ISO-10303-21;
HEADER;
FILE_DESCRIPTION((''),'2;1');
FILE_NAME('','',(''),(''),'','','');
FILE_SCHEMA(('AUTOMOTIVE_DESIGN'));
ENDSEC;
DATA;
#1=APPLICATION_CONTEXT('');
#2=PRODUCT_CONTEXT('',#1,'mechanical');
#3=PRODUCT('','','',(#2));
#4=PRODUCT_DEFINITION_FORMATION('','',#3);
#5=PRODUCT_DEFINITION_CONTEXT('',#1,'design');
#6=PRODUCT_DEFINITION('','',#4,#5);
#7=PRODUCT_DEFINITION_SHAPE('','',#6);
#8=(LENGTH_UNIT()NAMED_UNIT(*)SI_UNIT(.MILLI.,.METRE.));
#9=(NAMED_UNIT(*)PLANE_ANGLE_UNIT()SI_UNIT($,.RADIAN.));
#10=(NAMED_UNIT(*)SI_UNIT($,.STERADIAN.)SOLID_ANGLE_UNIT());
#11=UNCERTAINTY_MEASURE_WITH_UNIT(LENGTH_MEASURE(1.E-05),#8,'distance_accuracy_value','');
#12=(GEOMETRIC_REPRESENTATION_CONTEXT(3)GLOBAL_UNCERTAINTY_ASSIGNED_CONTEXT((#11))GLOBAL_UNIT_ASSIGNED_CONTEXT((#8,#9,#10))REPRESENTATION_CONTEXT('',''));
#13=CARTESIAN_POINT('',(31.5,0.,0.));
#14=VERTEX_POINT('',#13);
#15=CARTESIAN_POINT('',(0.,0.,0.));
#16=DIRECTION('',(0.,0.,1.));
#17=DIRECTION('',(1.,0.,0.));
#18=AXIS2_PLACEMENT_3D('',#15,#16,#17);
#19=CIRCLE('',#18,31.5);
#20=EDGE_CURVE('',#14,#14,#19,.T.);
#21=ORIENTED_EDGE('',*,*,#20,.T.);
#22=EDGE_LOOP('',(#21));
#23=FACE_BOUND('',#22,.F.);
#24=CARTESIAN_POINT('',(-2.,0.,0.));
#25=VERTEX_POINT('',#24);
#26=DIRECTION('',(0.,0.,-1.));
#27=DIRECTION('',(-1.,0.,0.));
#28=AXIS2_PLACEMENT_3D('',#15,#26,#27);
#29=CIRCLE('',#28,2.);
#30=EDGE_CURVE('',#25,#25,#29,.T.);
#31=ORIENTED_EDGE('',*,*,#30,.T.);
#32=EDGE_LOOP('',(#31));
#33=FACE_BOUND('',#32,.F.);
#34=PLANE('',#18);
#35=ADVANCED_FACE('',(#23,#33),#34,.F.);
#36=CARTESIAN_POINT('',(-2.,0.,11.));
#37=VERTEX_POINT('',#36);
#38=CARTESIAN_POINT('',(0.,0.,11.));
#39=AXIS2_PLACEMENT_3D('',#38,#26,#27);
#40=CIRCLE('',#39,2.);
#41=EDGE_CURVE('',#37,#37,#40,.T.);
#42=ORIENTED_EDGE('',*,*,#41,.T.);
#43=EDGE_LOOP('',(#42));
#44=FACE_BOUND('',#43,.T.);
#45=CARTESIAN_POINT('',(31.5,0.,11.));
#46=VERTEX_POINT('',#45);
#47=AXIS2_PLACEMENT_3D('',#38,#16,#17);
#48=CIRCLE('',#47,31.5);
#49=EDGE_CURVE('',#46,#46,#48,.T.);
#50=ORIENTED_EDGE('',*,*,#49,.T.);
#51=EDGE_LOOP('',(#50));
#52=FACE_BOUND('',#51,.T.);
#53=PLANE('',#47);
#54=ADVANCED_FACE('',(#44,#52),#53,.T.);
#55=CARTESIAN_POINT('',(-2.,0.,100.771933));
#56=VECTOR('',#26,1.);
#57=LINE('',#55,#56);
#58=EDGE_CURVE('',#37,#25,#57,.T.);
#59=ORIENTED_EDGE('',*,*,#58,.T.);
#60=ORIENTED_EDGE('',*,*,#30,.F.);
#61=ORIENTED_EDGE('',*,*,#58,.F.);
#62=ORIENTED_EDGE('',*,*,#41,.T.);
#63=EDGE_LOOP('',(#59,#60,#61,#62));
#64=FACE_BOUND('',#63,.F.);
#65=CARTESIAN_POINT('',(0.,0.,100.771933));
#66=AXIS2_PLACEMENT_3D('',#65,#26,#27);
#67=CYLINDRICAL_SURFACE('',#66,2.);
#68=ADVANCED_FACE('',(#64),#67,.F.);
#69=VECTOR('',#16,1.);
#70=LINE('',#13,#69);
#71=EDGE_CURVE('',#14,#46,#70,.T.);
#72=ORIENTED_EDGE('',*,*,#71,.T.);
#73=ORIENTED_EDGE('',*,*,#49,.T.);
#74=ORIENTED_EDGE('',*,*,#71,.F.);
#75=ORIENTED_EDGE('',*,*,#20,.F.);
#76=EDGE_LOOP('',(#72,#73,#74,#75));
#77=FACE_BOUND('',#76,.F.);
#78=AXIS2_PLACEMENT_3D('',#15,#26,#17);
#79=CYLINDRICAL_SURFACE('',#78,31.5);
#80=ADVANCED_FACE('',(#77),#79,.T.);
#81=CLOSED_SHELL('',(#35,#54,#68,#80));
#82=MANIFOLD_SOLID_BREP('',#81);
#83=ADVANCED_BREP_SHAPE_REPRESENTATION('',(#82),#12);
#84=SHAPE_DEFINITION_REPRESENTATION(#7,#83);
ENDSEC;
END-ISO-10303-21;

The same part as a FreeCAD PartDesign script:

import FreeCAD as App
import Part
import Sketcher
from FreeCAD import Vector
Q = App.Units.Quantity

doc = App.newDocument("Part")
params = doc.addObject("Spreadsheet::Sheet", "Params")
for row, (alias, value) in enumerate([
    ("sketch1_diameter", "63 mm"),
    ("pad1_length", "11 mm"),
    ("sketch2_diameter", "4 mm"),
    ("hole_diameter", "4 mm"),
], start=1):
    params.set(f"A{row}", alias)
    params.set(f"B{row}", "=" + value)
    params.setAlias(f"B{row}", alias)

body = doc.addObject("PartDesign::Body", "Body")

sketch1 = body.newObject("Sketcher::SketchObject", "Sketch")
sketch1.AttachmentSupport = (doc.getObject("XY_Plane"), [""])
sketch1.MapMode = "FlatFace"
sketch1.addGeometry(Part.Circle(Vector(0, 0, 0), Vector(0, 0, 1), 32), False)
sketch1.addConstraint([
    Sketcher.Constraint("Coincident", 0, 3, -1, 1),
    Sketcher.Constraint("Diameter", 0, Q("63 mm")),
])
sketch1.setExpression("Constraints[1]", "Params.sketch1_diameter")
pad1 = body.newObject("PartDesign::Pad", "Pad")
pad1.Profile = sketch1
pad1.setExpression("Length", "Params.pad1_length")

sketch2 = body.newObject("Sketcher::SketchObject", "Sketch001")
sketch2.AttachmentSupport = (doc.getObject("XY_Plane"), [""])
sketch2.MapMode = "FlatFace"
sketch2.AttachmentOffset = App.Placement(Vector(0, 0, 11), App.Rotation())
sketch2.addGeometry(Part.Circle(Vector(0, 0, 0), Vector(0, 0, 1), 2), False)
sketch2.addConstraint([
    Sketcher.Constraint("Coincident", 0, 3, -1, 1),
    Sketcher.Constraint("Diameter", 0, Q("4 mm")),
])
sketch2.setExpression("Constraints[1]", "Params.sketch2_diameter")
doc.recompute()
hole = body.newObject("PartDesign::Hole", "Hole")
hole.Profile = sketch2
hole.ThreadType = "None"
hole.setExpression("Diameter", "Params.hole_diameter")
hole.DepthType = "ThroughAll"

doc.recompute()
